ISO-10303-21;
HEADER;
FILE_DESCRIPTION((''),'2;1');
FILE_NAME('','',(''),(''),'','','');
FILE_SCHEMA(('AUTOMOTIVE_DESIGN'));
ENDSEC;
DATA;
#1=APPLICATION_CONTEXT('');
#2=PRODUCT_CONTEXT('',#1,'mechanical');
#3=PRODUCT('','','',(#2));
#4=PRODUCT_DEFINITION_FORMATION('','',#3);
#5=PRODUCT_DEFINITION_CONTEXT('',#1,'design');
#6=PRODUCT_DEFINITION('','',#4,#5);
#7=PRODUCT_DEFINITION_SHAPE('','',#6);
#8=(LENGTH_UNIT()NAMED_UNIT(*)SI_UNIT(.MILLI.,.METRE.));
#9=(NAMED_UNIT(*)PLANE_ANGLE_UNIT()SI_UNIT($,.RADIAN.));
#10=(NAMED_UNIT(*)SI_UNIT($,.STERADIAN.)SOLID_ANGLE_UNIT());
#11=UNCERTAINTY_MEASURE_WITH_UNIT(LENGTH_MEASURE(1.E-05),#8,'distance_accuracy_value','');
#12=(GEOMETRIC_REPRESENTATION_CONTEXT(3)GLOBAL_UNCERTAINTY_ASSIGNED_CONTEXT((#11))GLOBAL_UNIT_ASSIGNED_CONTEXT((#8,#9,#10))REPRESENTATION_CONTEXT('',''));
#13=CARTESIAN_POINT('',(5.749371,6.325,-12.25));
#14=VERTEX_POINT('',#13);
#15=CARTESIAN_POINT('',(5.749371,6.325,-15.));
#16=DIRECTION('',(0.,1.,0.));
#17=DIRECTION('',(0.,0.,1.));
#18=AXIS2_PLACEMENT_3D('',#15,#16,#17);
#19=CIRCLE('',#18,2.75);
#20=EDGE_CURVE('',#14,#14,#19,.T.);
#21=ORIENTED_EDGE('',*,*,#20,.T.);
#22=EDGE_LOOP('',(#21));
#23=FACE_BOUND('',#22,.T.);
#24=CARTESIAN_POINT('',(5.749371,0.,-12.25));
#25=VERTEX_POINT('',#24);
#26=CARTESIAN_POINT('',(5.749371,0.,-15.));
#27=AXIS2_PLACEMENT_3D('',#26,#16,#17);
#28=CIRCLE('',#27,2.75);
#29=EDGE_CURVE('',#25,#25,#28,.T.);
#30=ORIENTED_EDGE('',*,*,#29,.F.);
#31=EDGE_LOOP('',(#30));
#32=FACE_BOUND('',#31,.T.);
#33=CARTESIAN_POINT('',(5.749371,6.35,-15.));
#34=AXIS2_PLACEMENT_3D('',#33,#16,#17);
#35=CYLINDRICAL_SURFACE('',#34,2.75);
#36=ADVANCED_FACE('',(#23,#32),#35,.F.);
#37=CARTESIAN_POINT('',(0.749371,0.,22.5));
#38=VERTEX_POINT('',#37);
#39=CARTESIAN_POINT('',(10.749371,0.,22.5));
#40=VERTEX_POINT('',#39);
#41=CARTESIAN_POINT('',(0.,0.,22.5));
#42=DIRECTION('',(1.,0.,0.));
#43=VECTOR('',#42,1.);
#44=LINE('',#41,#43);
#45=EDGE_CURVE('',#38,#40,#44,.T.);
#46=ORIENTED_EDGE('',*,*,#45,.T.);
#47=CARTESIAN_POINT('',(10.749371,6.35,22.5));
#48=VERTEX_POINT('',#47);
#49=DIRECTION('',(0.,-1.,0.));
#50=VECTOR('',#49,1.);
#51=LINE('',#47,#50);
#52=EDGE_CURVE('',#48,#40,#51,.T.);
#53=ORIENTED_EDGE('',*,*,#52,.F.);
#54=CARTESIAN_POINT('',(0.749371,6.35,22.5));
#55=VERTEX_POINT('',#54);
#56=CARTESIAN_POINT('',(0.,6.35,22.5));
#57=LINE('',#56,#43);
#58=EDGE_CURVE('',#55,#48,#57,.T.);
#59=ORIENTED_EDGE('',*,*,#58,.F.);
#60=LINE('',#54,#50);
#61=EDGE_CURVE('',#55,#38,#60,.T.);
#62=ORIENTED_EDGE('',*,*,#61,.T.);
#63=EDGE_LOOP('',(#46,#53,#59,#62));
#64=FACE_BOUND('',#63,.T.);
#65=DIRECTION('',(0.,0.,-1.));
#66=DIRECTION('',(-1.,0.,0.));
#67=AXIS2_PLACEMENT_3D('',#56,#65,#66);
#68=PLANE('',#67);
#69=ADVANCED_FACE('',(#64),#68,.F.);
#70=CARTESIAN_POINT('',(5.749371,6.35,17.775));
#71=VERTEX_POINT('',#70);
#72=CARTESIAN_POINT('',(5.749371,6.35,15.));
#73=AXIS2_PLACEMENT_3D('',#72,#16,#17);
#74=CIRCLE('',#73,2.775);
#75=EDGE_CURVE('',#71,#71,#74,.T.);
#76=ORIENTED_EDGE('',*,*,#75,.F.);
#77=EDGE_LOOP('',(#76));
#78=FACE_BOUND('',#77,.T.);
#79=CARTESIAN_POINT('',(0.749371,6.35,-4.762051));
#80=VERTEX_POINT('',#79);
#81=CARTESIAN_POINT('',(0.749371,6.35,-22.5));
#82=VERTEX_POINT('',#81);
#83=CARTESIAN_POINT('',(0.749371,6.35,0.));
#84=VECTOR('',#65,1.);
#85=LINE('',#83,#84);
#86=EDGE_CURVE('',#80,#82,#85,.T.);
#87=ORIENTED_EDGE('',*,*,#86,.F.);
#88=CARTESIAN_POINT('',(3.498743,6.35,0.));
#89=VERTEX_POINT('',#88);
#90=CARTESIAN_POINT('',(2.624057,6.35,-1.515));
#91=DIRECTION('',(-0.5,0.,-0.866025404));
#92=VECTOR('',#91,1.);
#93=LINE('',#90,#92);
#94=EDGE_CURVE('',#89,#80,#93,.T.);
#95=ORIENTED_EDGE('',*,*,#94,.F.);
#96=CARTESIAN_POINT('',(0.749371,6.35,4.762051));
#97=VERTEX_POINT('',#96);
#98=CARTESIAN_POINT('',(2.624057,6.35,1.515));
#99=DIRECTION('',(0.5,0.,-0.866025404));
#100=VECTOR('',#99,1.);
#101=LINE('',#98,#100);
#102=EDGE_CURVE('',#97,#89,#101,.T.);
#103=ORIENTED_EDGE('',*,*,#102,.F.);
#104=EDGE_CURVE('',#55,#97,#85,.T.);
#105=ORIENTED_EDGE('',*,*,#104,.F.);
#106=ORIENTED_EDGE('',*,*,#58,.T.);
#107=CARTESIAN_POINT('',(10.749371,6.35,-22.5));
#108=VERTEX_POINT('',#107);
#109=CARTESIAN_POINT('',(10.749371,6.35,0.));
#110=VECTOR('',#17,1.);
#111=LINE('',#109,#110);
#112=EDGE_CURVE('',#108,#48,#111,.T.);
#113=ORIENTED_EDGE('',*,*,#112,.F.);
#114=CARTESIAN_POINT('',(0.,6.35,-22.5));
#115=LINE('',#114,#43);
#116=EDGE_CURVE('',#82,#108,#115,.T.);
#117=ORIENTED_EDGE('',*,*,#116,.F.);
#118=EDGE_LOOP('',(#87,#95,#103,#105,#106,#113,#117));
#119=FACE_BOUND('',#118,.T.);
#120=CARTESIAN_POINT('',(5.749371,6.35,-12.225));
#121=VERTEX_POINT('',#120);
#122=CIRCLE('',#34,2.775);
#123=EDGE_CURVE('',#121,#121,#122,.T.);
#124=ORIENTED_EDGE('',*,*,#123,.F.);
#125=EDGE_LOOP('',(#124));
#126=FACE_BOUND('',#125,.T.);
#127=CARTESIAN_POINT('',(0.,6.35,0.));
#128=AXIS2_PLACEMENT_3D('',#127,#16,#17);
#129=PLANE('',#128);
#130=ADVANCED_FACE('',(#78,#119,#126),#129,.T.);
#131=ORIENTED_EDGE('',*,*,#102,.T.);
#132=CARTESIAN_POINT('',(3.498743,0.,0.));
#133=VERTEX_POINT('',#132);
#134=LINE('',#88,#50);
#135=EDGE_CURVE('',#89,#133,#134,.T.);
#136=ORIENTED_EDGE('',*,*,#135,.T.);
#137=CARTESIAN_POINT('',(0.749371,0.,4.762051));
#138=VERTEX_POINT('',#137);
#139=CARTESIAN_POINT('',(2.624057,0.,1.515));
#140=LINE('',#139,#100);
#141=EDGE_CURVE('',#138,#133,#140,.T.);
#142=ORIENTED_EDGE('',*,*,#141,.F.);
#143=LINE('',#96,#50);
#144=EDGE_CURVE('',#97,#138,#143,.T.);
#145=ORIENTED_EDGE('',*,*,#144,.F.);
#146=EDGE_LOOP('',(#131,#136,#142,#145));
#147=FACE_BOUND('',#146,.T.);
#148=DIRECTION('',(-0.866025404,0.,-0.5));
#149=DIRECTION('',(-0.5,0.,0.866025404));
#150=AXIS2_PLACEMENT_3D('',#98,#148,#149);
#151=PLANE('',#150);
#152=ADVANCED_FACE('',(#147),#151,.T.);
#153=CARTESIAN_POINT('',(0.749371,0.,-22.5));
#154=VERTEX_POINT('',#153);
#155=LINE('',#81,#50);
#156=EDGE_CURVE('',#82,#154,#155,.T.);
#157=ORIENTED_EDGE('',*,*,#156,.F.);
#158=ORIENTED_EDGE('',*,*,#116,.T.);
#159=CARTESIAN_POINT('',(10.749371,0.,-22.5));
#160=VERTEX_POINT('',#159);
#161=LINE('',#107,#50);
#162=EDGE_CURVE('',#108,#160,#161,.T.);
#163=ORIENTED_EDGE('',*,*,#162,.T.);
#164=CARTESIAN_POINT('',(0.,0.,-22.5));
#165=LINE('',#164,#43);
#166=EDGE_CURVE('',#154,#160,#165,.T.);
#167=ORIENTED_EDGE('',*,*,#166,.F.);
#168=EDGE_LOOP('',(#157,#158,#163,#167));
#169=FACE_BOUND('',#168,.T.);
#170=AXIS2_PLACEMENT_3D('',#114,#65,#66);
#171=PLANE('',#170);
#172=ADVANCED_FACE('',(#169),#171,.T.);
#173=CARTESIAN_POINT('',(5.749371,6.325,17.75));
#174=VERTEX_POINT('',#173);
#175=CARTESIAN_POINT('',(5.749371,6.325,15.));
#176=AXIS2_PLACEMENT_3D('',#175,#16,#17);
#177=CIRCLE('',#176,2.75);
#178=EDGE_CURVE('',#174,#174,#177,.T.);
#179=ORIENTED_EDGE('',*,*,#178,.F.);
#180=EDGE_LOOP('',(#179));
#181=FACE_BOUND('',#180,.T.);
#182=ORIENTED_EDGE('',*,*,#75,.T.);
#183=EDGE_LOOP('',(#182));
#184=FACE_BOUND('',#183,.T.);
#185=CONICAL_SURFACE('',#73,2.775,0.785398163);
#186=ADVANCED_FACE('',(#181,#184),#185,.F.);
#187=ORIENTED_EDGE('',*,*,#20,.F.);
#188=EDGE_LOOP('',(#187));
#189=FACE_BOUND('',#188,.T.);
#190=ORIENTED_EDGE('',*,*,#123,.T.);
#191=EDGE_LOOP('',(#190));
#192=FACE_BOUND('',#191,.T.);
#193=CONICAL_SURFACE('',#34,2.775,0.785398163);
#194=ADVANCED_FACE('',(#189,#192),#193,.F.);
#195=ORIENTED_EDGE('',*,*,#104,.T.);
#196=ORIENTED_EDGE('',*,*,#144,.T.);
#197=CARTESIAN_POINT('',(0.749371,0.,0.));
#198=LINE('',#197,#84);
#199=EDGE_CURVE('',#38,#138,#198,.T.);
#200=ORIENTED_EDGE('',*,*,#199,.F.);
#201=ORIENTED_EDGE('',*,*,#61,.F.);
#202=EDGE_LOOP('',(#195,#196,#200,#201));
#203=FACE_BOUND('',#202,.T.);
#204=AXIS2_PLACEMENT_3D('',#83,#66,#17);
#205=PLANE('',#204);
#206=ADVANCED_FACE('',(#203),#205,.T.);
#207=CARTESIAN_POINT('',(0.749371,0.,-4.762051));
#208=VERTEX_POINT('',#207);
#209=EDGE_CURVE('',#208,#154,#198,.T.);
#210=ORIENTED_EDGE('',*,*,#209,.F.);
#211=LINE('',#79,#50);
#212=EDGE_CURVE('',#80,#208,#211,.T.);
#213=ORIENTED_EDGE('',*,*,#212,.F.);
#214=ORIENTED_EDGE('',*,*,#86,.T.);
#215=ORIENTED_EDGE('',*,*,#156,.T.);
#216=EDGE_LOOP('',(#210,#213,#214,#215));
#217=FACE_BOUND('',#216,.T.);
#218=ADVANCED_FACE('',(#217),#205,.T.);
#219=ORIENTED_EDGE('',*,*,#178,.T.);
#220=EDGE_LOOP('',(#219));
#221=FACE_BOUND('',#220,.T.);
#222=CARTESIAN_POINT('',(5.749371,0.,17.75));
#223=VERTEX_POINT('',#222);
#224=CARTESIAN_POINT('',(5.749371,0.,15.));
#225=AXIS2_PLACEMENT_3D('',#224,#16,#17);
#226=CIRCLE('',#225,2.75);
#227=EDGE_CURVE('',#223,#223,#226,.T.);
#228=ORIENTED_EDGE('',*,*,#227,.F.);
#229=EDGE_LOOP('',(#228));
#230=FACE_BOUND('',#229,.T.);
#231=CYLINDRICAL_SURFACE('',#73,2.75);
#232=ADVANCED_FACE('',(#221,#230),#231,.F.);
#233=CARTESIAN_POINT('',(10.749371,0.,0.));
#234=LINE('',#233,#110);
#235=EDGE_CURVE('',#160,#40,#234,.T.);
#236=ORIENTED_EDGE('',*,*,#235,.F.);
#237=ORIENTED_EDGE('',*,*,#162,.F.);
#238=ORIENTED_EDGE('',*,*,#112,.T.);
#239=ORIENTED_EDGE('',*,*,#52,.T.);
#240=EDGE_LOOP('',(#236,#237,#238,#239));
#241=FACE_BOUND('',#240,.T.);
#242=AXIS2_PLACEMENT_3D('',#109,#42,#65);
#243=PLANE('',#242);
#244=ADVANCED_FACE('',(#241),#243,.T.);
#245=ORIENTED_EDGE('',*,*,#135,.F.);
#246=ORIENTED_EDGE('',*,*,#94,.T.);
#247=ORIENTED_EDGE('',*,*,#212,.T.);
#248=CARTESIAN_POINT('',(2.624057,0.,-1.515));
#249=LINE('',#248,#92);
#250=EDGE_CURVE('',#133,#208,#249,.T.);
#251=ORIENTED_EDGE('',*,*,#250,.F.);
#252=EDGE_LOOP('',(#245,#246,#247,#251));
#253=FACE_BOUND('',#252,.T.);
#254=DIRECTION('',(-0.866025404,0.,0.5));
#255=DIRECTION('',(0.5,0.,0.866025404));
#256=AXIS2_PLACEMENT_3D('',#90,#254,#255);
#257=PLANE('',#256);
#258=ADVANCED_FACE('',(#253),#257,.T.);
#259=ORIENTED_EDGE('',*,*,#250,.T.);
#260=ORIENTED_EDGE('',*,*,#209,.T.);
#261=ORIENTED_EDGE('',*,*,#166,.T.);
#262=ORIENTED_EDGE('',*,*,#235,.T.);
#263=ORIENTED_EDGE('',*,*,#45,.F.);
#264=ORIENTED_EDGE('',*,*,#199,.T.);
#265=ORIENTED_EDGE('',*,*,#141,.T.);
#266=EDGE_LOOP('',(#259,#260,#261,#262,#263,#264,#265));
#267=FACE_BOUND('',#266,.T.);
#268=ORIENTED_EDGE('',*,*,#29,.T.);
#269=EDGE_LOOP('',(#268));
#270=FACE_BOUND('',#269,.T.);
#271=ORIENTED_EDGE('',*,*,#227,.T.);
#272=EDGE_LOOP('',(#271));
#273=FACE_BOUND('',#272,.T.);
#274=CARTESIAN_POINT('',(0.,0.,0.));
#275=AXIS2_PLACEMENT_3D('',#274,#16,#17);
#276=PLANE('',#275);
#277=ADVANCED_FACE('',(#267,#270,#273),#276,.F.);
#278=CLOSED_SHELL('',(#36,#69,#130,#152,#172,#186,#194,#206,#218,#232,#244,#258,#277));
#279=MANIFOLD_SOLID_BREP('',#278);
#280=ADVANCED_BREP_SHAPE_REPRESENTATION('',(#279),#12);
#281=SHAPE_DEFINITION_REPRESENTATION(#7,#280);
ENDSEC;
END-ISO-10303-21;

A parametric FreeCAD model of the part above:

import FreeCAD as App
import Part
import Sketcher
from FreeCAD import Vector
Q = App.Units.Quantity


def add_polygon(sketch, points):
    """Adds a closed chain of lines whose ends are joined by coincident constraints."""
    first, n = sketch.GeometryCount, len(points)
    for a, b in zip(points, points[1:] + points[:1]):
        sketch.addGeometry(Part.LineSegment(App.Vector(*a, 0), App.Vector(*b, 0)), False)
    for i in range(n):
        sketch.addConstraint(Sketcher.Constraint("Coincident", first + i, 2, first + (i + 1) % n, 1))

doc = App.newDocument("Part")
params = doc.addObject("Spreadsheet::Sheet", "Params")
for row, (alias, value) in enumerate([
    ("sketch1_width", "10 mm"),
    ("sketch1_height", "45 mm"),
    ("pad1_length", "6.35 mm"),
    ("sketch2_diameter", "5.5 mm"),
    ("hole_diameter", "5.5 mm"),
    ("hole_depth", "10.1 mm"),
    ("hole_csink_diameter", "5.55 mm"),
], start=1):
    params.set(f"A{row}", alias)
    params.set(f"B{row}", "=" + value)
    params.setAlias(f"B{row}", alias)

body = doc.addObject("PartDesign::Body", "Body")

# Sketch on XZ plane
sketch1 = body.newObject("Sketcher::SketchObject", "Sketch")
sketch1.AttachmentSupport = (doc.getObject("XZ_Plane"), [""])
sketch1.MapMode = "FlatFace"
add_polygon(sketch1, [(10.749371, -22.5), (0.749371, -22.5), (0.749371, -4.762051), (3.498743, 0), (0.749371, 4.762051), (0.749371, 22.5), (10.749371, 22.5)])  # lines 0-6
sketch1.addConstraint(Sketcher.Constraint("Horizontal", 0))
sketch1.addConstraint(Sketcher.Constraint("Vertical", 1))
sketch1.addConstraint(Sketcher.Constraint("Vertical", 4))
sketch1.addConstraint(Sketcher.Constraint("Horizontal", 5))
sketch1.addConstraint(Sketcher.Constraint("Vertical", 6))
sketch1.addConstraint(Sketcher.Constraint("Symmetric", 1, 2, 3, 2, -1))
sketch1.addConstraint(Sketcher.Constraint("PointOnObject", 2, 2, -1))
sketch1.addConstraint(Sketcher.Constraint("Equal", 1, 4))
sketch1.addConstraint(Sketcher.Constraint("DistanceX", 0, 2, 0, 1, Q("10 mm")))
sketch1.addConstraint(Sketcher.Constraint("DistanceY", 6, 2, 6, 1, Q("45 mm")))
sketch1.addConstraint(Sketcher.Constraint("Angle", 2, Q("60 deg")))
sketch1.addConstraint(Sketcher.Constraint("DistanceY", 1, 1, 1, 2, Q("17.737949 mm")))
sketch1.addConstraint(Sketcher.Constraint("DistanceX", -1, 1, 0, 2, Q("0.749371 mm")))
sketch1.setExpression("Constraints[15]", "Params.sketch1_width")
sketch1.setExpression("Constraints[16]", "Params.sketch1_height")
pad1 = body.newObject("PartDesign::Pad", "Pad")
pad1.Profile = sketch1
pad1.setExpression("Length", "Params.pad1_length")
pad1.Reversed = True

# Sketch on XZ plane
sketch2 = body.newObject("Sketcher::SketchObject", "Sketch001")
sketch2.AttachmentSupport = (doc.getObject("XZ_Plane"), [""])
sketch2.MapMode = "FlatFace"
sketch2.AttachmentOffset = App.Placement(Vector(0, 0, -6.35), App.Rotation())
sketch2.addGeometry(Part.Circle(Vector(5.749371, -15, 0), Vector(0, 0, 1), 2.75), False)
sketch2.addGeometry(Part.Circle(Vector(5.749371, 15, 0), Vector(0, 0, 1), 2.75), False)
sketch2.addConstraint(Sketcher.Constraint("Equal", 0, 1))
sketch2.addConstraint(Sketcher.Constraint("Symmetric", 0, 3, 1, 3, -1))
sketch2.addConstraint(Sketcher.Constraint("Diameter", 0, Q("5.5 mm")))
sketch2.addConstraint(Sketcher.Constraint("DistanceY", 0, 3, -1, 1, Q("15 mm")))
sketch2.addConstraint(Sketcher.Constraint("DistanceX", -1, 1, 0, 3, Q("5.749371 mm")))
sketch2.setExpression("Constraints[2]", "Params.sketch2_diameter")
doc.recompute()
hole = body.newObject("PartDesign::Hole", "Hole")
hole.Profile = sketch2
hole.ThreadType = "None"
hole.setExpression("Diameter", "Params.hole_diameter")
hole.DepthType = "Dimension"
hole.setExpression("Depth", "Params.hole_depth")
hole.DrillPoint = "Angled"
hole.DrillPointAngle = 118
hole.HoleCutType = "Countersink"
hole.setExpression("HoleCutDiameter", "Params.hole_csink_diameter")
hole.HoleCutCountersinkAngle = 90
hole.Reversed = True

doc.recompute()
